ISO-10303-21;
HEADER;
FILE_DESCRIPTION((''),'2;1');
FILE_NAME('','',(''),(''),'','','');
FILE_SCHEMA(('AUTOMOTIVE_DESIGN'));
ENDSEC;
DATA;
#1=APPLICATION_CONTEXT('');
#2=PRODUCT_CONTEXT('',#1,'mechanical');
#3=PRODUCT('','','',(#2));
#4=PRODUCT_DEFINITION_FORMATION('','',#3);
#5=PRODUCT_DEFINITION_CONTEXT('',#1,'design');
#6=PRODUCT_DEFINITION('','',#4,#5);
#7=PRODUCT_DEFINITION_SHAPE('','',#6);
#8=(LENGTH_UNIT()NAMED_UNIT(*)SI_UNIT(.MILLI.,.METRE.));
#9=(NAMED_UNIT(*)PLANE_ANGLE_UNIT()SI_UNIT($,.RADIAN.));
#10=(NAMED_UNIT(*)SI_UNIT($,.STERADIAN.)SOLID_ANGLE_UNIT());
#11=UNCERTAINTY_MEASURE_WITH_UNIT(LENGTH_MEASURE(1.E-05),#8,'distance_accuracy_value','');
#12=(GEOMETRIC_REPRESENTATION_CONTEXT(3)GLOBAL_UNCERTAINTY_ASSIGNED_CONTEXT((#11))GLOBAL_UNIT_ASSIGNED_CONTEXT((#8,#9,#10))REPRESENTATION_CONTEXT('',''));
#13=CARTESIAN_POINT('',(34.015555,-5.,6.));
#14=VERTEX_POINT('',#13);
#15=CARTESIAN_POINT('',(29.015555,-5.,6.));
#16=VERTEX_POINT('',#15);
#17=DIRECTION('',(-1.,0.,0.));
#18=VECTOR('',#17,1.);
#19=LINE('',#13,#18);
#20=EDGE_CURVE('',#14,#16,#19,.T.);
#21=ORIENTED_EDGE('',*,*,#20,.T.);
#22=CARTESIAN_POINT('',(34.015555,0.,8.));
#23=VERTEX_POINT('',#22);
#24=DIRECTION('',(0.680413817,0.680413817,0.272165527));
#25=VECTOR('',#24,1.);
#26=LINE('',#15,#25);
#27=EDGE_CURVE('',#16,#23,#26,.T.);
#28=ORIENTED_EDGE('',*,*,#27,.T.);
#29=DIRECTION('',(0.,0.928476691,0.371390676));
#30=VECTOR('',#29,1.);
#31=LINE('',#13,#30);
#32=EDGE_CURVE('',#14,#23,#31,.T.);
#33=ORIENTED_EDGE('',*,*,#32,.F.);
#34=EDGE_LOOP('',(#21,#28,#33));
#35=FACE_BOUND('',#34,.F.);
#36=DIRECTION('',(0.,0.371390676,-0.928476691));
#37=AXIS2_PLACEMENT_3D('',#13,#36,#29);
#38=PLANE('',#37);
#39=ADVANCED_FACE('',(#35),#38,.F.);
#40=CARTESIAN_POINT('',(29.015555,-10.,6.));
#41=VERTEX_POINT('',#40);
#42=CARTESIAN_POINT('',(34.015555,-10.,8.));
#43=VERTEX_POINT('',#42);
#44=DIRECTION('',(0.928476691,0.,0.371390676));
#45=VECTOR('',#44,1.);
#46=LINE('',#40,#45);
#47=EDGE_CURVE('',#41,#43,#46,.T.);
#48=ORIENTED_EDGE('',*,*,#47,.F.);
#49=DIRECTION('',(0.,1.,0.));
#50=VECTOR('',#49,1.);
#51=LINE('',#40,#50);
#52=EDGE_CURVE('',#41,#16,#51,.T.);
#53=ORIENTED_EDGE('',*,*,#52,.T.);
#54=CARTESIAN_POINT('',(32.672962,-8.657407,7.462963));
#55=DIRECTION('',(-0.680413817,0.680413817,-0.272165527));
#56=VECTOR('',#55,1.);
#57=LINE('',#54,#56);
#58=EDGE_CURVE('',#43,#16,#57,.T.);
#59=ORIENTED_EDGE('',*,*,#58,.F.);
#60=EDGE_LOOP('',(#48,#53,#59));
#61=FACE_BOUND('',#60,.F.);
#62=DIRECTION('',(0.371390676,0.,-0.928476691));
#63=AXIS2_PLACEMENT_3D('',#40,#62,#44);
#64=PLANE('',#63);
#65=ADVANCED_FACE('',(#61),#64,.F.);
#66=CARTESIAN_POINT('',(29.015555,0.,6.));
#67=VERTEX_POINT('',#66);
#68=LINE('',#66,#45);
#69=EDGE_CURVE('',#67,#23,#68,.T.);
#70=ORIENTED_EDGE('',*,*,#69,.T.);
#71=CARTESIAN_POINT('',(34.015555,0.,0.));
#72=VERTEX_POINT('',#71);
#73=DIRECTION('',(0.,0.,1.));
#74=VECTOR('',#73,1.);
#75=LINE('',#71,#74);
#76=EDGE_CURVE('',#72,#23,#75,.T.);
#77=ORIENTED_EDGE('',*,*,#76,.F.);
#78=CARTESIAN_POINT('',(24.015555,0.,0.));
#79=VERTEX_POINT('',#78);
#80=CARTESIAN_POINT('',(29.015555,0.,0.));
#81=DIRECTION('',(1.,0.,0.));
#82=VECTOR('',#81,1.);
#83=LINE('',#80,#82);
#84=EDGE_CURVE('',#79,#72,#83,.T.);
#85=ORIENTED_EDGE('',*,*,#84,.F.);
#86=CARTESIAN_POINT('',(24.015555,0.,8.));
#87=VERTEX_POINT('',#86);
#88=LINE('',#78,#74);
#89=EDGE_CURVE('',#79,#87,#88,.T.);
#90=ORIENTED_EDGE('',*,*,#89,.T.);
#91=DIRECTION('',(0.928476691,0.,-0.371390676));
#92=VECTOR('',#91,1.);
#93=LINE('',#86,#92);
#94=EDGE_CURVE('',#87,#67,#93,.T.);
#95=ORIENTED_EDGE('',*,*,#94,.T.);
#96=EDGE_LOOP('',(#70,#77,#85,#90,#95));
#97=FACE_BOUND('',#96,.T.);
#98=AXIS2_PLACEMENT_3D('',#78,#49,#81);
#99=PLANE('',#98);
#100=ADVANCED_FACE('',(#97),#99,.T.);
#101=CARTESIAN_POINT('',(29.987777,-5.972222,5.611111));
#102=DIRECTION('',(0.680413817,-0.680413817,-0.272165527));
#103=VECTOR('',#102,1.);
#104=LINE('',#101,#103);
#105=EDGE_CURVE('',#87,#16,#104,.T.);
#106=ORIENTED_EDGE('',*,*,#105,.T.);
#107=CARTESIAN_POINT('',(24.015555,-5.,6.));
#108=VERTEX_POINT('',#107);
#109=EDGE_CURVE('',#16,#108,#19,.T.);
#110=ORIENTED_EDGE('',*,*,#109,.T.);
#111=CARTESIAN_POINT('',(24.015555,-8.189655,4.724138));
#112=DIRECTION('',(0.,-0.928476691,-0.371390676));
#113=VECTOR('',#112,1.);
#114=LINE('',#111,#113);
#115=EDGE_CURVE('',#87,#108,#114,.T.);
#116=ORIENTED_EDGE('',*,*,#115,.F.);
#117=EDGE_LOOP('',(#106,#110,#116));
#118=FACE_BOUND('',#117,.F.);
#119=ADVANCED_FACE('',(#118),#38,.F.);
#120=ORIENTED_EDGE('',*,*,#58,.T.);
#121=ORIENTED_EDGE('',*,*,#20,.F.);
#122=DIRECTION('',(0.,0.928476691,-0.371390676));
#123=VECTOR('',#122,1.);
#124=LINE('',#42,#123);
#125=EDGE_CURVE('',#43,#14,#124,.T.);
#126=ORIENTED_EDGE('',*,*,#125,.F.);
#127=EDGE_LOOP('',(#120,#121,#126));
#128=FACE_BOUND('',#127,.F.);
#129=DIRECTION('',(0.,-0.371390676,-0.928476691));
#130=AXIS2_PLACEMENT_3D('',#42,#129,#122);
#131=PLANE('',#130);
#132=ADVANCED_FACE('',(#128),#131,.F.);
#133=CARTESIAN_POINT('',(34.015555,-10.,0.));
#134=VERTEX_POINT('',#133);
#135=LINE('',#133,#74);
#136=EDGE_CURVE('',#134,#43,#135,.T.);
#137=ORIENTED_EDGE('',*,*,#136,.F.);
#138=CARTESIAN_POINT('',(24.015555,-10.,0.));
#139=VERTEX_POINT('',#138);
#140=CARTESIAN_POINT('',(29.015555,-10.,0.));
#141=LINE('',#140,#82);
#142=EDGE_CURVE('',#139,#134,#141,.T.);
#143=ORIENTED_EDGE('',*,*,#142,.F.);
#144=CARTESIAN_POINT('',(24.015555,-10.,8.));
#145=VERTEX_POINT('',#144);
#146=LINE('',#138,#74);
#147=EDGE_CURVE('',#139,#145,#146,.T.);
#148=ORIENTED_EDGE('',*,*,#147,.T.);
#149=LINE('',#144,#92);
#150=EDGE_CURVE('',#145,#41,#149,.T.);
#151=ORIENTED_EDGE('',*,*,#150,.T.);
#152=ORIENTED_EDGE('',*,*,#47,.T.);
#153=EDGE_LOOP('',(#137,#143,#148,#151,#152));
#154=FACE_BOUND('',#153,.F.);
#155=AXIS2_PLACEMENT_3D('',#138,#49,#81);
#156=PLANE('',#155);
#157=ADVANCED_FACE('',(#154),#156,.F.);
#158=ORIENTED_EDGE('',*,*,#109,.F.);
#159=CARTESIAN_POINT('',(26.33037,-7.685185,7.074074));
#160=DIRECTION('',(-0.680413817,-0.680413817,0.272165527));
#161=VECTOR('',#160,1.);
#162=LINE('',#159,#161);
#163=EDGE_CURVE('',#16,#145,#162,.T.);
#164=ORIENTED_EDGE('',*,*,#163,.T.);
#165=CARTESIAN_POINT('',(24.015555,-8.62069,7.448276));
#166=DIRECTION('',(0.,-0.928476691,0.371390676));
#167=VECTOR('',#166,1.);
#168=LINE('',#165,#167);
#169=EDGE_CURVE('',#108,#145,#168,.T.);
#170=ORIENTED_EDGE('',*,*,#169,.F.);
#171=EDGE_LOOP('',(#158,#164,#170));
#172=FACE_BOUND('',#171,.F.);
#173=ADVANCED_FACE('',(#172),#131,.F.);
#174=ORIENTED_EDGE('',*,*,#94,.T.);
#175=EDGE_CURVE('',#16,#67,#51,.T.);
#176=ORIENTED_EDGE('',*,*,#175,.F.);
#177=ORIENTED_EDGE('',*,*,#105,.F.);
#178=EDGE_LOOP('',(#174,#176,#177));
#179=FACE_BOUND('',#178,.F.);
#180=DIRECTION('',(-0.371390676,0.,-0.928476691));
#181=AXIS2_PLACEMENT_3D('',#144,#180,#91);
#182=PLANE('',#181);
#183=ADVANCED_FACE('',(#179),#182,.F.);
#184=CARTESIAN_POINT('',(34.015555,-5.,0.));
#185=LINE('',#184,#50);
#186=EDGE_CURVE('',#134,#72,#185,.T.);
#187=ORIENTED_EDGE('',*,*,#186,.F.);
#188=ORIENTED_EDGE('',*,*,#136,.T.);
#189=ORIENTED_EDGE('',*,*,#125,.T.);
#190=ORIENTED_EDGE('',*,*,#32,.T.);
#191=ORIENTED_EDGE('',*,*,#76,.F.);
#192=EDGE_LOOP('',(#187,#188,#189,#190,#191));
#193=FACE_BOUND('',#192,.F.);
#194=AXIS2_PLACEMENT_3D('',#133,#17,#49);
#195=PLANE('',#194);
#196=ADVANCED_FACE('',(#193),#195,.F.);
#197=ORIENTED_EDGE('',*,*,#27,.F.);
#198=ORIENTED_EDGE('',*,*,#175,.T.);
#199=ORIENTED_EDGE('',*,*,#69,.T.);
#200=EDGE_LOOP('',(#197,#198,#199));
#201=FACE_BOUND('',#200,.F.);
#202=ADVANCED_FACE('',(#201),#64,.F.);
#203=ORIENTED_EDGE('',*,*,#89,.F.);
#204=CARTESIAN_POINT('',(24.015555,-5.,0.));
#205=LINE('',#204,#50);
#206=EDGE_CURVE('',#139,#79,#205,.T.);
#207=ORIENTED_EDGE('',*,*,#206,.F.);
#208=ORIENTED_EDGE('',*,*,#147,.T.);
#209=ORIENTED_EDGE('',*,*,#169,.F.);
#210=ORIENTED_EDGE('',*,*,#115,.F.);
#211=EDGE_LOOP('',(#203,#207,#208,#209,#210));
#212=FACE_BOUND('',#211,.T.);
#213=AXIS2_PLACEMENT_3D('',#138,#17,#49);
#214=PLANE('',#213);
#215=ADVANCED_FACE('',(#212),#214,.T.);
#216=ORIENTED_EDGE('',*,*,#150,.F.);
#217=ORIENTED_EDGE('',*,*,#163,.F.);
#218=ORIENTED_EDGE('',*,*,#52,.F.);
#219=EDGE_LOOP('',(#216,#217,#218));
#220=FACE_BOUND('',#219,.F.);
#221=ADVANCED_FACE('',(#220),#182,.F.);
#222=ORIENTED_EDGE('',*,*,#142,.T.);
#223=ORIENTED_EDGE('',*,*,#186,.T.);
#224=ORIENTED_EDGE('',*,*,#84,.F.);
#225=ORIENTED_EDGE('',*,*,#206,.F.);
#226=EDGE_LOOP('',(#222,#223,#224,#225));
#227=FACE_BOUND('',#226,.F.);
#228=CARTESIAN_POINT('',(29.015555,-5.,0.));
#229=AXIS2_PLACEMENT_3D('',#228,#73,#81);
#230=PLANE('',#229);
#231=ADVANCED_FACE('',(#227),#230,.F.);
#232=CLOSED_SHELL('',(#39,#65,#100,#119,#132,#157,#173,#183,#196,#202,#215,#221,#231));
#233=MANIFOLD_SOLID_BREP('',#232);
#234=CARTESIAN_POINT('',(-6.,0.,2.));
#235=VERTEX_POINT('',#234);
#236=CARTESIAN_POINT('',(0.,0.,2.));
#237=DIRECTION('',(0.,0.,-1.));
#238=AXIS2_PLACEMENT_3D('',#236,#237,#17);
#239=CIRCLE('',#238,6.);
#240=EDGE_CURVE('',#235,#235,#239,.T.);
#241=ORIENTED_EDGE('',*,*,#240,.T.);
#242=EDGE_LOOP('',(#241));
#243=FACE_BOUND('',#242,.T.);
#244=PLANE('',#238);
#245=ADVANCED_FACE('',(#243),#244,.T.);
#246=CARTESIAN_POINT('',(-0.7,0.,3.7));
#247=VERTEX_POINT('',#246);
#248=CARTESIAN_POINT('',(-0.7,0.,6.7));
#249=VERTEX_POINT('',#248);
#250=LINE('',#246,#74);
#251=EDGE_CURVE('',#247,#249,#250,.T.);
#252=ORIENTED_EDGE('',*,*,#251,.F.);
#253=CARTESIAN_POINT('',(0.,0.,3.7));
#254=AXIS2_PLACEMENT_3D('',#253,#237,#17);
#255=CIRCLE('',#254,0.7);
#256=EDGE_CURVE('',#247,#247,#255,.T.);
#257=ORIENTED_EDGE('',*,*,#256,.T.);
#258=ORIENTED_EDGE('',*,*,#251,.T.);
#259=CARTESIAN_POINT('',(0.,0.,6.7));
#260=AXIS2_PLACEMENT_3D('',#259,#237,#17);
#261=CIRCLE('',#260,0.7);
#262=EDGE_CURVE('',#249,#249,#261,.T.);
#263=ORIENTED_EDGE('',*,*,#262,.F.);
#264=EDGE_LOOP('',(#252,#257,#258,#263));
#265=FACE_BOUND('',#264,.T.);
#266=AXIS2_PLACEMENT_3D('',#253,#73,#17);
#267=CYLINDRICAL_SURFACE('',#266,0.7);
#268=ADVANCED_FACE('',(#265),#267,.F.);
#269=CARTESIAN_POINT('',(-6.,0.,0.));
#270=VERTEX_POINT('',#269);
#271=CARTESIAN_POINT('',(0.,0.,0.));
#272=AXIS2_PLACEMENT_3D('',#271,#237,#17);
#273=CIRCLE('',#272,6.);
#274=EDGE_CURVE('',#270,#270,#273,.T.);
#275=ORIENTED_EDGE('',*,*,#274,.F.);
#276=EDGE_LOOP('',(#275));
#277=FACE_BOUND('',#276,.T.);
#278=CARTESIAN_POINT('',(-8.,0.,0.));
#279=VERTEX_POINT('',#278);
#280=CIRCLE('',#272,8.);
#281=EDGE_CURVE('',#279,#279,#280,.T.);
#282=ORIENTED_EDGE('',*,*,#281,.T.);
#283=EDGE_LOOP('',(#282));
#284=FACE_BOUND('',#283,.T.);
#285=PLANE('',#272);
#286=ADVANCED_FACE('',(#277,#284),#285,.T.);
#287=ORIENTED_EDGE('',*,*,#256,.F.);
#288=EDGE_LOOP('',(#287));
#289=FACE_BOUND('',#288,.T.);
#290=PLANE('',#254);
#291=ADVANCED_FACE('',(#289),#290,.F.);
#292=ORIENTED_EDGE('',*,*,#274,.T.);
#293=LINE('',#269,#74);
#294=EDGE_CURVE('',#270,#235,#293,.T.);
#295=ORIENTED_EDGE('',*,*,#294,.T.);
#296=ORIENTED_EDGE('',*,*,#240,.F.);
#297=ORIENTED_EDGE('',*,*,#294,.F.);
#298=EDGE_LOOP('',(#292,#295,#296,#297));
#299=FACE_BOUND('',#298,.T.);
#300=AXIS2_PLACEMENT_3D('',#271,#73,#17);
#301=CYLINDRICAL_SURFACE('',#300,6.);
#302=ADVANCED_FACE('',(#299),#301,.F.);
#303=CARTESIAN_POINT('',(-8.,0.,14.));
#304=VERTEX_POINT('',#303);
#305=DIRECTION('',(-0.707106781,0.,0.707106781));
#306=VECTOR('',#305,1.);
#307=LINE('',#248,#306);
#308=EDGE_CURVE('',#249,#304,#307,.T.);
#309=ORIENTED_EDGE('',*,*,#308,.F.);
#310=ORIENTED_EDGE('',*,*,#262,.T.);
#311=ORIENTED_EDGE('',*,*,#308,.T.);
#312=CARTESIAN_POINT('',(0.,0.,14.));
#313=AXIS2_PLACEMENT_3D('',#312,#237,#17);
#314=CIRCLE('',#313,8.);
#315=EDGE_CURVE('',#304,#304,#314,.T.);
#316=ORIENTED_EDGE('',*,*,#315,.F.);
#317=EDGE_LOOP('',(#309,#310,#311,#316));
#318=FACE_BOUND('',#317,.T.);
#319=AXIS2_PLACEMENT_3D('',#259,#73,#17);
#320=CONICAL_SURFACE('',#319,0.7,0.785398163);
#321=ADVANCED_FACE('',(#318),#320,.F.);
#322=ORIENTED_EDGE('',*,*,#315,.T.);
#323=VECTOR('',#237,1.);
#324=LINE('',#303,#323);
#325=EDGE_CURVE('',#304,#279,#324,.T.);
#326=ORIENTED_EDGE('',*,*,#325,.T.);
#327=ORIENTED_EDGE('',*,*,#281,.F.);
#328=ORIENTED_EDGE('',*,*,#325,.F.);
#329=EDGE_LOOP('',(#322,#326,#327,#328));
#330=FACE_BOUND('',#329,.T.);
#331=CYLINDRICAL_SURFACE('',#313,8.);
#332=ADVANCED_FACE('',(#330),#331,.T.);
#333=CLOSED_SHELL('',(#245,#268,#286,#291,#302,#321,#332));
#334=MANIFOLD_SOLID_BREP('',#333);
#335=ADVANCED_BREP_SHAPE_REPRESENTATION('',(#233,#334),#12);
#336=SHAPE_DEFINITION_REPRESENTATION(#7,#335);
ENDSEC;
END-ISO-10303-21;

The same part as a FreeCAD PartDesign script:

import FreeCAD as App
import Part
import Sketcher
from FreeCAD import Vector
Q = App.Units.Quantity

doc = App.newDocument("Part")
params = doc.addObject("Spreadsheet::Sheet", "Params")
for row, (alias, value) in enumerate([
    ("sketch1_width", "6 mm"),
    ("sketch1_width2", "2 mm"),
    ("sketch1_height", "3 mm"),
    ("sketch1_height2", "14 mm"),
    ("sketch1_width3", "0.7 mm"),
    ("revolution_angle", "360 deg"),
    ("sketch2_width", "10 mm"),
    ("pad1_length", "8 mm"),
    ("sketch3_width", "10 mm"),
    ("sketch4_width", "10 mm"),
    ("pocket2_length", "25 mm"),
], start=1):
    params.set(f"A{row}", alias)
    params.set(f"B{row}", "=" + value)
    params.setAlias(f"B{row}", alias)

body = doc.addObject("PartDesign::Body", "Body")

# Sketch on XZ plane
sketch1 = doc.addObject("Sketcher::SketchObject", "Sketch")
body.addObject(sketch1)
sketch1.AttachmentSupport = (doc.XZ_Plane, [""])
sketch1.MapMode = "FlatFace"
sketch1.addGeometry(Part.LineSegment(Vector(-6, 2, 0), Vector(0, 2, 0)), False)
sketch1.addGeometry(Part.LineSegment(Vector(0, 2, 0), Vector(0, 3.7, 0)), False)
sketch1.addGeometry(Part.LineSegment(Vector(0, 3.7, 0), Vector(-0.7, 3.7, 0)), False)
sketch1.addGeometry(Part.LineSegment(Vector(-0.7, 3.7, 0), Vector(-0.7, 6.7, 0)), False)
sketch1.addGeometry(Part.LineSegment(Vector(-0.7, 6.7, 0), Vector(-8, 14, 0)), False)
sketch1.addGeometry(Part.LineSegment(Vector(-8, 14, 0), Vector(-8, 0, 0)), False)
sketch1.addGeometry(Part.LineSegment(Vector(-8, 0, 0), Vector(-6, 0, 0)), False)
sketch1.addGeometry(Part.LineSegment(Vector(-6, 0, 0), Vector(-6, 2, 0)), False)
sketch1.addConstraint(Sketcher.Constraint("Coincident", 0, 2, 1, 1))
sketch1.addConstraint(Sketcher.Constraint("Coincident", 1, 2, 2, 1))
sketch1.addConstraint(Sketcher.Constraint("Coincident", 2, 2, 3, 1))
sketch1.addConstraint(Sketcher.Constraint("Coincident", 3, 2, 4, 1))
sketch1.addConstraint(Sketcher.Constraint("Coincident", 4, 2, 5, 1))
sketch1.addConstraint(Sketcher.Constraint("Coincident", 5, 2, 6, 1))
sketch1.addConstraint(Sketcher.Constraint("Coincident", 6, 2, 7, 1))
sketch1.addConstraint(Sketcher.Constraint("Coincident", 7, 2, 0, 1))
sketch1.addConstraint(Sketcher.Constraint("Horizontal", 0))
sketch1.addConstraint(Sketcher.Constraint("Vertical", 1))
sketch1.addConstraint(Sketcher.Constraint("Horizontal", 2))
sketch1.addConstraint(Sketcher.Constraint("Vertical", 3))
sketch1.addConstraint(Sketcher.Constraint("Vertical", 5))
sketch1.addConstraint(Sketcher.Constraint("Horizontal", 6))
sketch1.addConstraint(Sketcher.Constraint("Vertical", 7))
sketch1.addConstraint(Sketcher.Constraint("PointOnObject", 0, 2, -2))
sketch1.addConstraint(Sketcher.Constraint("PointOnObject", 5, 2, -1))
sketch1.addConstraint(Sketcher.Constraint("Equal", 6, 7))
sketch1.addConstraint(Sketcher.Constraint("DistanceX", 0, 1, 0, 2, 6.0))
sketch1.addConstraint(Sketcher.Constraint("DistanceX", 6, 1, 6, 2, 2.0))
sketch1.addConstraint(Sketcher.Constraint("DistanceY", 3, 1, 3, 2, 3.0))
sketch1.addConstraint(Sketcher.Constraint("DistanceY", 5, 2, 5, 1, 14.0))
sketch1.addConstraint(Sketcher.Constraint("Angle", 4, Q("135 deg")))
sketch1.addConstraint(Sketcher.Constraint("DistanceX", 2, 2, 2, 1, 0.7))
sketch1.setExpression("Constraints[18]", "Params.sketch1_width")
sketch1.setExpression("Constraints[19]", "Params.sketch1_width2")
sketch1.setExpression("Constraints[20]", "Params.sketch1_height")
sketch1.setExpression("Constraints[21]", "Params.sketch1_height2")
sketch1.setExpression("Constraints[23]", "Params.sketch1_width3")
revolution = doc.addObject("PartDesign::Revolution", "Revolution")
body.addObject(revolution)
revolution.Profile = sketch1
revolution.ReferenceAxis = (sketch1, ["V_Axis"])
revolution.setExpression("Angle", "Params.revolution_angle")
body2 = doc.addObject("PartDesign::Body", "Body001")

# Sketch on XY plane
sketch2 = doc.addObject("Sketcher::SketchObject", "Sketch001")
body2.addObject(sketch2)
sketch2.AttachmentSupport = (doc.getObject("XY_Plane001"), [""])
sketch2.MapMode = "FlatFace"
sketch2.addGeometry(Part.LineSegment(Vector(24, 0, 0), Vector(24, -10, 0)), False)
sketch2.addGeometry(Part.LineSegment(Vector(24, -10, 0), Vector(34, -10, 0)), False)
sketch2.addGeometry(Part.LineSegment(Vector(34, -10, 0), Vector(34, 0, 0)), False)
sketch2.addGeometry(Part.LineSegment(Vector(34, 0, 0), Vector(24, 0, 0)), False)
sketch2.addConstraint(Sketcher.Constraint("Coincident", 0, 2, 1, 1))
sketch2.addConstraint(Sketcher.Constraint("Coincident", 1, 2, 2, 1))
sketch2.addConstraint(Sketcher.Constraint("Coincident", 2, 2, 3, 1))
sketch2.addConstraint(Sketcher.Constraint("Coincident", 3, 2, 0, 1))
sketch2.addConstraint(Sketcher.Constraint("Vertical", 0))
sketch2.addConstraint(Sketcher.Constraint("Horizontal", 1))
sketch2.addConstraint(Sketcher.Constraint("Vertical", 2))
sketch2.addConstraint(Sketcher.Constraint("Horizontal", 3))
sketch2.addConstraint(Sketcher.Constraint("PointOnObject", 2, 2, -1))
sketch2.addConstraint(Sketcher.Constraint("Equal", 3, 0))
sketch2.addConstraint(Sketcher.Constraint("DistanceX", 1, 1, 1, 2, 10.0))
sketch2.addConstraint(Sketcher.Constraint("DistanceX", -1, 1, 0, 2, 24.015555))
sketch2.setExpression("Constraints[10]", "Params.sketch2_width")
pad1 = doc.addObject("PartDesign::Pad", "Pad")
body2.addObject(pad1)
pad1.Profile = sketch2
pad1.setExpression("Length", "Params.pad1_length")

# Sketch on XZ plane
sketch3 = doc.addObject("Sketcher::SketchObject", "Sketch002")
body2.addObject(sketch3)
sketch3.AttachmentSupport = (doc.getObject("XZ_Plane001"), [""])
sketch3.MapMode = "FlatFace"
sketch3.AttachmentOffset = App.Placement(Vector(0, 0, 10), App.Rotation())
sketch3.addGeometry(Part.LineSegment(Vector(34, 8, 0), Vector(24, 8, 0)), False)
sketch3.addGeometry(Part.LineSegment(Vector(24, 8, 0), Vector(29, 6, 0)), False)
sketch3.addGeometry(Part.LineSegment(Vector(29, 6, 0), Vector(34, 8, 0)), False)
sketch3.addConstraint(Sketcher.Constraint("Coincident", 0, 2, 1, 1))
sketch3.addConstraint(Sketcher.Constraint("Coincident", 1, 2, 2, 1))
sketch3.addConstraint(Sketcher.Constraint("Coincident", 2, 2, 0, 1))
sketch3.addConstraint(Sketcher.Constraint("Horizontal", 0))
sketch3.addConstraint(Sketcher.Constraint("Equal", 1, 2))
sketch3.addConstraint(Sketcher.Constraint("DistanceX", 0, 2, 0, 1, 10.0))
sketch3.addConstraint(Sketcher.Constraint("DistanceY", -1, 1, 0, 2, 8.0))
sketch3.addConstraint(Sketcher.Constraint("DistanceY", -1, 1, 1, 2, 6.0))
sketch3.addConstraint(Sketcher.Constraint("DistanceX", -1, 1, 0, 2, 24.015555))
sketch3.setExpression("Constraints[5]", "Params.sketch3_width")
pocket1 = doc.addObject("PartDesign::Pocket", "Pocket")
body2.addObject(pocket1)
pocket1.Profile = sketch3
pocket1.Type = "ThroughAll"

# Sketch on YZ plane
sketch4 = doc.addObject("Sketcher::SketchObject", "Sketch003")
body2.addObject(sketch4)
sketch4.AttachmentSupport = (doc.getObject("YZ_Plane001"), [""])
sketch4.MapMode = "FlatFace"
sketch4.AttachmentOffset = App.Placement(Vector(0, 0, 34.015555), App.Rotation())
sketch4.addGeometry(Part.LineSegment(Vector(0, 8, 0), Vector(-10, 8, 0)), False)
sketch4.addGeometry(Part.LineSegment(Vector(-10, 8, 0), Vector(-5, 6, 0)), False)
sketch4.addGeometry(Part.LineSegment(Vector(-5, 6, 0), Vector(0, 8, 0)), False)
sketch4.addConstraint(Sketcher.Constraint("Coincident", 0, 2, 1, 1))
sketch4.addConstraint(Sketcher.Constraint("Coincident", 1, 2, 2, 1))
sketch4.addConstraint(Sketcher.Constraint("Coincident", 2, 2, 0, 1))
sketch4.addConstraint(Sketcher.Constraint("Horizontal", 0))
sketch4.addConstraint(Sketcher.Constraint("PointOnObject", 2, 2, -2))
sketch4.addConstraint(Sketcher.Constraint("Equal", 1, 2))
sketch4.addConstraint(Sketcher.Constraint("DistanceX", 0, 2, 0, 1, 10.0))
sketch4.addConstraint(Sketcher.Constraint("DistanceY", -1, 1, 0, 2, 8.0))
sketch4.addConstraint(Sketcher.Constraint("DistanceY", -1, 1, 1, 2, 6.0))
sketch4.setExpression("Constraints[6]", "Params.sketch4_width")
pocket2 = doc.addObject("PartDesign::Pocket", "Pocket001")
body2.addObject(pocket2)
pocket2.Profile = sketch4
pocket2.setExpression("Length", "Params.pocket2_length")

doc.recompute()
